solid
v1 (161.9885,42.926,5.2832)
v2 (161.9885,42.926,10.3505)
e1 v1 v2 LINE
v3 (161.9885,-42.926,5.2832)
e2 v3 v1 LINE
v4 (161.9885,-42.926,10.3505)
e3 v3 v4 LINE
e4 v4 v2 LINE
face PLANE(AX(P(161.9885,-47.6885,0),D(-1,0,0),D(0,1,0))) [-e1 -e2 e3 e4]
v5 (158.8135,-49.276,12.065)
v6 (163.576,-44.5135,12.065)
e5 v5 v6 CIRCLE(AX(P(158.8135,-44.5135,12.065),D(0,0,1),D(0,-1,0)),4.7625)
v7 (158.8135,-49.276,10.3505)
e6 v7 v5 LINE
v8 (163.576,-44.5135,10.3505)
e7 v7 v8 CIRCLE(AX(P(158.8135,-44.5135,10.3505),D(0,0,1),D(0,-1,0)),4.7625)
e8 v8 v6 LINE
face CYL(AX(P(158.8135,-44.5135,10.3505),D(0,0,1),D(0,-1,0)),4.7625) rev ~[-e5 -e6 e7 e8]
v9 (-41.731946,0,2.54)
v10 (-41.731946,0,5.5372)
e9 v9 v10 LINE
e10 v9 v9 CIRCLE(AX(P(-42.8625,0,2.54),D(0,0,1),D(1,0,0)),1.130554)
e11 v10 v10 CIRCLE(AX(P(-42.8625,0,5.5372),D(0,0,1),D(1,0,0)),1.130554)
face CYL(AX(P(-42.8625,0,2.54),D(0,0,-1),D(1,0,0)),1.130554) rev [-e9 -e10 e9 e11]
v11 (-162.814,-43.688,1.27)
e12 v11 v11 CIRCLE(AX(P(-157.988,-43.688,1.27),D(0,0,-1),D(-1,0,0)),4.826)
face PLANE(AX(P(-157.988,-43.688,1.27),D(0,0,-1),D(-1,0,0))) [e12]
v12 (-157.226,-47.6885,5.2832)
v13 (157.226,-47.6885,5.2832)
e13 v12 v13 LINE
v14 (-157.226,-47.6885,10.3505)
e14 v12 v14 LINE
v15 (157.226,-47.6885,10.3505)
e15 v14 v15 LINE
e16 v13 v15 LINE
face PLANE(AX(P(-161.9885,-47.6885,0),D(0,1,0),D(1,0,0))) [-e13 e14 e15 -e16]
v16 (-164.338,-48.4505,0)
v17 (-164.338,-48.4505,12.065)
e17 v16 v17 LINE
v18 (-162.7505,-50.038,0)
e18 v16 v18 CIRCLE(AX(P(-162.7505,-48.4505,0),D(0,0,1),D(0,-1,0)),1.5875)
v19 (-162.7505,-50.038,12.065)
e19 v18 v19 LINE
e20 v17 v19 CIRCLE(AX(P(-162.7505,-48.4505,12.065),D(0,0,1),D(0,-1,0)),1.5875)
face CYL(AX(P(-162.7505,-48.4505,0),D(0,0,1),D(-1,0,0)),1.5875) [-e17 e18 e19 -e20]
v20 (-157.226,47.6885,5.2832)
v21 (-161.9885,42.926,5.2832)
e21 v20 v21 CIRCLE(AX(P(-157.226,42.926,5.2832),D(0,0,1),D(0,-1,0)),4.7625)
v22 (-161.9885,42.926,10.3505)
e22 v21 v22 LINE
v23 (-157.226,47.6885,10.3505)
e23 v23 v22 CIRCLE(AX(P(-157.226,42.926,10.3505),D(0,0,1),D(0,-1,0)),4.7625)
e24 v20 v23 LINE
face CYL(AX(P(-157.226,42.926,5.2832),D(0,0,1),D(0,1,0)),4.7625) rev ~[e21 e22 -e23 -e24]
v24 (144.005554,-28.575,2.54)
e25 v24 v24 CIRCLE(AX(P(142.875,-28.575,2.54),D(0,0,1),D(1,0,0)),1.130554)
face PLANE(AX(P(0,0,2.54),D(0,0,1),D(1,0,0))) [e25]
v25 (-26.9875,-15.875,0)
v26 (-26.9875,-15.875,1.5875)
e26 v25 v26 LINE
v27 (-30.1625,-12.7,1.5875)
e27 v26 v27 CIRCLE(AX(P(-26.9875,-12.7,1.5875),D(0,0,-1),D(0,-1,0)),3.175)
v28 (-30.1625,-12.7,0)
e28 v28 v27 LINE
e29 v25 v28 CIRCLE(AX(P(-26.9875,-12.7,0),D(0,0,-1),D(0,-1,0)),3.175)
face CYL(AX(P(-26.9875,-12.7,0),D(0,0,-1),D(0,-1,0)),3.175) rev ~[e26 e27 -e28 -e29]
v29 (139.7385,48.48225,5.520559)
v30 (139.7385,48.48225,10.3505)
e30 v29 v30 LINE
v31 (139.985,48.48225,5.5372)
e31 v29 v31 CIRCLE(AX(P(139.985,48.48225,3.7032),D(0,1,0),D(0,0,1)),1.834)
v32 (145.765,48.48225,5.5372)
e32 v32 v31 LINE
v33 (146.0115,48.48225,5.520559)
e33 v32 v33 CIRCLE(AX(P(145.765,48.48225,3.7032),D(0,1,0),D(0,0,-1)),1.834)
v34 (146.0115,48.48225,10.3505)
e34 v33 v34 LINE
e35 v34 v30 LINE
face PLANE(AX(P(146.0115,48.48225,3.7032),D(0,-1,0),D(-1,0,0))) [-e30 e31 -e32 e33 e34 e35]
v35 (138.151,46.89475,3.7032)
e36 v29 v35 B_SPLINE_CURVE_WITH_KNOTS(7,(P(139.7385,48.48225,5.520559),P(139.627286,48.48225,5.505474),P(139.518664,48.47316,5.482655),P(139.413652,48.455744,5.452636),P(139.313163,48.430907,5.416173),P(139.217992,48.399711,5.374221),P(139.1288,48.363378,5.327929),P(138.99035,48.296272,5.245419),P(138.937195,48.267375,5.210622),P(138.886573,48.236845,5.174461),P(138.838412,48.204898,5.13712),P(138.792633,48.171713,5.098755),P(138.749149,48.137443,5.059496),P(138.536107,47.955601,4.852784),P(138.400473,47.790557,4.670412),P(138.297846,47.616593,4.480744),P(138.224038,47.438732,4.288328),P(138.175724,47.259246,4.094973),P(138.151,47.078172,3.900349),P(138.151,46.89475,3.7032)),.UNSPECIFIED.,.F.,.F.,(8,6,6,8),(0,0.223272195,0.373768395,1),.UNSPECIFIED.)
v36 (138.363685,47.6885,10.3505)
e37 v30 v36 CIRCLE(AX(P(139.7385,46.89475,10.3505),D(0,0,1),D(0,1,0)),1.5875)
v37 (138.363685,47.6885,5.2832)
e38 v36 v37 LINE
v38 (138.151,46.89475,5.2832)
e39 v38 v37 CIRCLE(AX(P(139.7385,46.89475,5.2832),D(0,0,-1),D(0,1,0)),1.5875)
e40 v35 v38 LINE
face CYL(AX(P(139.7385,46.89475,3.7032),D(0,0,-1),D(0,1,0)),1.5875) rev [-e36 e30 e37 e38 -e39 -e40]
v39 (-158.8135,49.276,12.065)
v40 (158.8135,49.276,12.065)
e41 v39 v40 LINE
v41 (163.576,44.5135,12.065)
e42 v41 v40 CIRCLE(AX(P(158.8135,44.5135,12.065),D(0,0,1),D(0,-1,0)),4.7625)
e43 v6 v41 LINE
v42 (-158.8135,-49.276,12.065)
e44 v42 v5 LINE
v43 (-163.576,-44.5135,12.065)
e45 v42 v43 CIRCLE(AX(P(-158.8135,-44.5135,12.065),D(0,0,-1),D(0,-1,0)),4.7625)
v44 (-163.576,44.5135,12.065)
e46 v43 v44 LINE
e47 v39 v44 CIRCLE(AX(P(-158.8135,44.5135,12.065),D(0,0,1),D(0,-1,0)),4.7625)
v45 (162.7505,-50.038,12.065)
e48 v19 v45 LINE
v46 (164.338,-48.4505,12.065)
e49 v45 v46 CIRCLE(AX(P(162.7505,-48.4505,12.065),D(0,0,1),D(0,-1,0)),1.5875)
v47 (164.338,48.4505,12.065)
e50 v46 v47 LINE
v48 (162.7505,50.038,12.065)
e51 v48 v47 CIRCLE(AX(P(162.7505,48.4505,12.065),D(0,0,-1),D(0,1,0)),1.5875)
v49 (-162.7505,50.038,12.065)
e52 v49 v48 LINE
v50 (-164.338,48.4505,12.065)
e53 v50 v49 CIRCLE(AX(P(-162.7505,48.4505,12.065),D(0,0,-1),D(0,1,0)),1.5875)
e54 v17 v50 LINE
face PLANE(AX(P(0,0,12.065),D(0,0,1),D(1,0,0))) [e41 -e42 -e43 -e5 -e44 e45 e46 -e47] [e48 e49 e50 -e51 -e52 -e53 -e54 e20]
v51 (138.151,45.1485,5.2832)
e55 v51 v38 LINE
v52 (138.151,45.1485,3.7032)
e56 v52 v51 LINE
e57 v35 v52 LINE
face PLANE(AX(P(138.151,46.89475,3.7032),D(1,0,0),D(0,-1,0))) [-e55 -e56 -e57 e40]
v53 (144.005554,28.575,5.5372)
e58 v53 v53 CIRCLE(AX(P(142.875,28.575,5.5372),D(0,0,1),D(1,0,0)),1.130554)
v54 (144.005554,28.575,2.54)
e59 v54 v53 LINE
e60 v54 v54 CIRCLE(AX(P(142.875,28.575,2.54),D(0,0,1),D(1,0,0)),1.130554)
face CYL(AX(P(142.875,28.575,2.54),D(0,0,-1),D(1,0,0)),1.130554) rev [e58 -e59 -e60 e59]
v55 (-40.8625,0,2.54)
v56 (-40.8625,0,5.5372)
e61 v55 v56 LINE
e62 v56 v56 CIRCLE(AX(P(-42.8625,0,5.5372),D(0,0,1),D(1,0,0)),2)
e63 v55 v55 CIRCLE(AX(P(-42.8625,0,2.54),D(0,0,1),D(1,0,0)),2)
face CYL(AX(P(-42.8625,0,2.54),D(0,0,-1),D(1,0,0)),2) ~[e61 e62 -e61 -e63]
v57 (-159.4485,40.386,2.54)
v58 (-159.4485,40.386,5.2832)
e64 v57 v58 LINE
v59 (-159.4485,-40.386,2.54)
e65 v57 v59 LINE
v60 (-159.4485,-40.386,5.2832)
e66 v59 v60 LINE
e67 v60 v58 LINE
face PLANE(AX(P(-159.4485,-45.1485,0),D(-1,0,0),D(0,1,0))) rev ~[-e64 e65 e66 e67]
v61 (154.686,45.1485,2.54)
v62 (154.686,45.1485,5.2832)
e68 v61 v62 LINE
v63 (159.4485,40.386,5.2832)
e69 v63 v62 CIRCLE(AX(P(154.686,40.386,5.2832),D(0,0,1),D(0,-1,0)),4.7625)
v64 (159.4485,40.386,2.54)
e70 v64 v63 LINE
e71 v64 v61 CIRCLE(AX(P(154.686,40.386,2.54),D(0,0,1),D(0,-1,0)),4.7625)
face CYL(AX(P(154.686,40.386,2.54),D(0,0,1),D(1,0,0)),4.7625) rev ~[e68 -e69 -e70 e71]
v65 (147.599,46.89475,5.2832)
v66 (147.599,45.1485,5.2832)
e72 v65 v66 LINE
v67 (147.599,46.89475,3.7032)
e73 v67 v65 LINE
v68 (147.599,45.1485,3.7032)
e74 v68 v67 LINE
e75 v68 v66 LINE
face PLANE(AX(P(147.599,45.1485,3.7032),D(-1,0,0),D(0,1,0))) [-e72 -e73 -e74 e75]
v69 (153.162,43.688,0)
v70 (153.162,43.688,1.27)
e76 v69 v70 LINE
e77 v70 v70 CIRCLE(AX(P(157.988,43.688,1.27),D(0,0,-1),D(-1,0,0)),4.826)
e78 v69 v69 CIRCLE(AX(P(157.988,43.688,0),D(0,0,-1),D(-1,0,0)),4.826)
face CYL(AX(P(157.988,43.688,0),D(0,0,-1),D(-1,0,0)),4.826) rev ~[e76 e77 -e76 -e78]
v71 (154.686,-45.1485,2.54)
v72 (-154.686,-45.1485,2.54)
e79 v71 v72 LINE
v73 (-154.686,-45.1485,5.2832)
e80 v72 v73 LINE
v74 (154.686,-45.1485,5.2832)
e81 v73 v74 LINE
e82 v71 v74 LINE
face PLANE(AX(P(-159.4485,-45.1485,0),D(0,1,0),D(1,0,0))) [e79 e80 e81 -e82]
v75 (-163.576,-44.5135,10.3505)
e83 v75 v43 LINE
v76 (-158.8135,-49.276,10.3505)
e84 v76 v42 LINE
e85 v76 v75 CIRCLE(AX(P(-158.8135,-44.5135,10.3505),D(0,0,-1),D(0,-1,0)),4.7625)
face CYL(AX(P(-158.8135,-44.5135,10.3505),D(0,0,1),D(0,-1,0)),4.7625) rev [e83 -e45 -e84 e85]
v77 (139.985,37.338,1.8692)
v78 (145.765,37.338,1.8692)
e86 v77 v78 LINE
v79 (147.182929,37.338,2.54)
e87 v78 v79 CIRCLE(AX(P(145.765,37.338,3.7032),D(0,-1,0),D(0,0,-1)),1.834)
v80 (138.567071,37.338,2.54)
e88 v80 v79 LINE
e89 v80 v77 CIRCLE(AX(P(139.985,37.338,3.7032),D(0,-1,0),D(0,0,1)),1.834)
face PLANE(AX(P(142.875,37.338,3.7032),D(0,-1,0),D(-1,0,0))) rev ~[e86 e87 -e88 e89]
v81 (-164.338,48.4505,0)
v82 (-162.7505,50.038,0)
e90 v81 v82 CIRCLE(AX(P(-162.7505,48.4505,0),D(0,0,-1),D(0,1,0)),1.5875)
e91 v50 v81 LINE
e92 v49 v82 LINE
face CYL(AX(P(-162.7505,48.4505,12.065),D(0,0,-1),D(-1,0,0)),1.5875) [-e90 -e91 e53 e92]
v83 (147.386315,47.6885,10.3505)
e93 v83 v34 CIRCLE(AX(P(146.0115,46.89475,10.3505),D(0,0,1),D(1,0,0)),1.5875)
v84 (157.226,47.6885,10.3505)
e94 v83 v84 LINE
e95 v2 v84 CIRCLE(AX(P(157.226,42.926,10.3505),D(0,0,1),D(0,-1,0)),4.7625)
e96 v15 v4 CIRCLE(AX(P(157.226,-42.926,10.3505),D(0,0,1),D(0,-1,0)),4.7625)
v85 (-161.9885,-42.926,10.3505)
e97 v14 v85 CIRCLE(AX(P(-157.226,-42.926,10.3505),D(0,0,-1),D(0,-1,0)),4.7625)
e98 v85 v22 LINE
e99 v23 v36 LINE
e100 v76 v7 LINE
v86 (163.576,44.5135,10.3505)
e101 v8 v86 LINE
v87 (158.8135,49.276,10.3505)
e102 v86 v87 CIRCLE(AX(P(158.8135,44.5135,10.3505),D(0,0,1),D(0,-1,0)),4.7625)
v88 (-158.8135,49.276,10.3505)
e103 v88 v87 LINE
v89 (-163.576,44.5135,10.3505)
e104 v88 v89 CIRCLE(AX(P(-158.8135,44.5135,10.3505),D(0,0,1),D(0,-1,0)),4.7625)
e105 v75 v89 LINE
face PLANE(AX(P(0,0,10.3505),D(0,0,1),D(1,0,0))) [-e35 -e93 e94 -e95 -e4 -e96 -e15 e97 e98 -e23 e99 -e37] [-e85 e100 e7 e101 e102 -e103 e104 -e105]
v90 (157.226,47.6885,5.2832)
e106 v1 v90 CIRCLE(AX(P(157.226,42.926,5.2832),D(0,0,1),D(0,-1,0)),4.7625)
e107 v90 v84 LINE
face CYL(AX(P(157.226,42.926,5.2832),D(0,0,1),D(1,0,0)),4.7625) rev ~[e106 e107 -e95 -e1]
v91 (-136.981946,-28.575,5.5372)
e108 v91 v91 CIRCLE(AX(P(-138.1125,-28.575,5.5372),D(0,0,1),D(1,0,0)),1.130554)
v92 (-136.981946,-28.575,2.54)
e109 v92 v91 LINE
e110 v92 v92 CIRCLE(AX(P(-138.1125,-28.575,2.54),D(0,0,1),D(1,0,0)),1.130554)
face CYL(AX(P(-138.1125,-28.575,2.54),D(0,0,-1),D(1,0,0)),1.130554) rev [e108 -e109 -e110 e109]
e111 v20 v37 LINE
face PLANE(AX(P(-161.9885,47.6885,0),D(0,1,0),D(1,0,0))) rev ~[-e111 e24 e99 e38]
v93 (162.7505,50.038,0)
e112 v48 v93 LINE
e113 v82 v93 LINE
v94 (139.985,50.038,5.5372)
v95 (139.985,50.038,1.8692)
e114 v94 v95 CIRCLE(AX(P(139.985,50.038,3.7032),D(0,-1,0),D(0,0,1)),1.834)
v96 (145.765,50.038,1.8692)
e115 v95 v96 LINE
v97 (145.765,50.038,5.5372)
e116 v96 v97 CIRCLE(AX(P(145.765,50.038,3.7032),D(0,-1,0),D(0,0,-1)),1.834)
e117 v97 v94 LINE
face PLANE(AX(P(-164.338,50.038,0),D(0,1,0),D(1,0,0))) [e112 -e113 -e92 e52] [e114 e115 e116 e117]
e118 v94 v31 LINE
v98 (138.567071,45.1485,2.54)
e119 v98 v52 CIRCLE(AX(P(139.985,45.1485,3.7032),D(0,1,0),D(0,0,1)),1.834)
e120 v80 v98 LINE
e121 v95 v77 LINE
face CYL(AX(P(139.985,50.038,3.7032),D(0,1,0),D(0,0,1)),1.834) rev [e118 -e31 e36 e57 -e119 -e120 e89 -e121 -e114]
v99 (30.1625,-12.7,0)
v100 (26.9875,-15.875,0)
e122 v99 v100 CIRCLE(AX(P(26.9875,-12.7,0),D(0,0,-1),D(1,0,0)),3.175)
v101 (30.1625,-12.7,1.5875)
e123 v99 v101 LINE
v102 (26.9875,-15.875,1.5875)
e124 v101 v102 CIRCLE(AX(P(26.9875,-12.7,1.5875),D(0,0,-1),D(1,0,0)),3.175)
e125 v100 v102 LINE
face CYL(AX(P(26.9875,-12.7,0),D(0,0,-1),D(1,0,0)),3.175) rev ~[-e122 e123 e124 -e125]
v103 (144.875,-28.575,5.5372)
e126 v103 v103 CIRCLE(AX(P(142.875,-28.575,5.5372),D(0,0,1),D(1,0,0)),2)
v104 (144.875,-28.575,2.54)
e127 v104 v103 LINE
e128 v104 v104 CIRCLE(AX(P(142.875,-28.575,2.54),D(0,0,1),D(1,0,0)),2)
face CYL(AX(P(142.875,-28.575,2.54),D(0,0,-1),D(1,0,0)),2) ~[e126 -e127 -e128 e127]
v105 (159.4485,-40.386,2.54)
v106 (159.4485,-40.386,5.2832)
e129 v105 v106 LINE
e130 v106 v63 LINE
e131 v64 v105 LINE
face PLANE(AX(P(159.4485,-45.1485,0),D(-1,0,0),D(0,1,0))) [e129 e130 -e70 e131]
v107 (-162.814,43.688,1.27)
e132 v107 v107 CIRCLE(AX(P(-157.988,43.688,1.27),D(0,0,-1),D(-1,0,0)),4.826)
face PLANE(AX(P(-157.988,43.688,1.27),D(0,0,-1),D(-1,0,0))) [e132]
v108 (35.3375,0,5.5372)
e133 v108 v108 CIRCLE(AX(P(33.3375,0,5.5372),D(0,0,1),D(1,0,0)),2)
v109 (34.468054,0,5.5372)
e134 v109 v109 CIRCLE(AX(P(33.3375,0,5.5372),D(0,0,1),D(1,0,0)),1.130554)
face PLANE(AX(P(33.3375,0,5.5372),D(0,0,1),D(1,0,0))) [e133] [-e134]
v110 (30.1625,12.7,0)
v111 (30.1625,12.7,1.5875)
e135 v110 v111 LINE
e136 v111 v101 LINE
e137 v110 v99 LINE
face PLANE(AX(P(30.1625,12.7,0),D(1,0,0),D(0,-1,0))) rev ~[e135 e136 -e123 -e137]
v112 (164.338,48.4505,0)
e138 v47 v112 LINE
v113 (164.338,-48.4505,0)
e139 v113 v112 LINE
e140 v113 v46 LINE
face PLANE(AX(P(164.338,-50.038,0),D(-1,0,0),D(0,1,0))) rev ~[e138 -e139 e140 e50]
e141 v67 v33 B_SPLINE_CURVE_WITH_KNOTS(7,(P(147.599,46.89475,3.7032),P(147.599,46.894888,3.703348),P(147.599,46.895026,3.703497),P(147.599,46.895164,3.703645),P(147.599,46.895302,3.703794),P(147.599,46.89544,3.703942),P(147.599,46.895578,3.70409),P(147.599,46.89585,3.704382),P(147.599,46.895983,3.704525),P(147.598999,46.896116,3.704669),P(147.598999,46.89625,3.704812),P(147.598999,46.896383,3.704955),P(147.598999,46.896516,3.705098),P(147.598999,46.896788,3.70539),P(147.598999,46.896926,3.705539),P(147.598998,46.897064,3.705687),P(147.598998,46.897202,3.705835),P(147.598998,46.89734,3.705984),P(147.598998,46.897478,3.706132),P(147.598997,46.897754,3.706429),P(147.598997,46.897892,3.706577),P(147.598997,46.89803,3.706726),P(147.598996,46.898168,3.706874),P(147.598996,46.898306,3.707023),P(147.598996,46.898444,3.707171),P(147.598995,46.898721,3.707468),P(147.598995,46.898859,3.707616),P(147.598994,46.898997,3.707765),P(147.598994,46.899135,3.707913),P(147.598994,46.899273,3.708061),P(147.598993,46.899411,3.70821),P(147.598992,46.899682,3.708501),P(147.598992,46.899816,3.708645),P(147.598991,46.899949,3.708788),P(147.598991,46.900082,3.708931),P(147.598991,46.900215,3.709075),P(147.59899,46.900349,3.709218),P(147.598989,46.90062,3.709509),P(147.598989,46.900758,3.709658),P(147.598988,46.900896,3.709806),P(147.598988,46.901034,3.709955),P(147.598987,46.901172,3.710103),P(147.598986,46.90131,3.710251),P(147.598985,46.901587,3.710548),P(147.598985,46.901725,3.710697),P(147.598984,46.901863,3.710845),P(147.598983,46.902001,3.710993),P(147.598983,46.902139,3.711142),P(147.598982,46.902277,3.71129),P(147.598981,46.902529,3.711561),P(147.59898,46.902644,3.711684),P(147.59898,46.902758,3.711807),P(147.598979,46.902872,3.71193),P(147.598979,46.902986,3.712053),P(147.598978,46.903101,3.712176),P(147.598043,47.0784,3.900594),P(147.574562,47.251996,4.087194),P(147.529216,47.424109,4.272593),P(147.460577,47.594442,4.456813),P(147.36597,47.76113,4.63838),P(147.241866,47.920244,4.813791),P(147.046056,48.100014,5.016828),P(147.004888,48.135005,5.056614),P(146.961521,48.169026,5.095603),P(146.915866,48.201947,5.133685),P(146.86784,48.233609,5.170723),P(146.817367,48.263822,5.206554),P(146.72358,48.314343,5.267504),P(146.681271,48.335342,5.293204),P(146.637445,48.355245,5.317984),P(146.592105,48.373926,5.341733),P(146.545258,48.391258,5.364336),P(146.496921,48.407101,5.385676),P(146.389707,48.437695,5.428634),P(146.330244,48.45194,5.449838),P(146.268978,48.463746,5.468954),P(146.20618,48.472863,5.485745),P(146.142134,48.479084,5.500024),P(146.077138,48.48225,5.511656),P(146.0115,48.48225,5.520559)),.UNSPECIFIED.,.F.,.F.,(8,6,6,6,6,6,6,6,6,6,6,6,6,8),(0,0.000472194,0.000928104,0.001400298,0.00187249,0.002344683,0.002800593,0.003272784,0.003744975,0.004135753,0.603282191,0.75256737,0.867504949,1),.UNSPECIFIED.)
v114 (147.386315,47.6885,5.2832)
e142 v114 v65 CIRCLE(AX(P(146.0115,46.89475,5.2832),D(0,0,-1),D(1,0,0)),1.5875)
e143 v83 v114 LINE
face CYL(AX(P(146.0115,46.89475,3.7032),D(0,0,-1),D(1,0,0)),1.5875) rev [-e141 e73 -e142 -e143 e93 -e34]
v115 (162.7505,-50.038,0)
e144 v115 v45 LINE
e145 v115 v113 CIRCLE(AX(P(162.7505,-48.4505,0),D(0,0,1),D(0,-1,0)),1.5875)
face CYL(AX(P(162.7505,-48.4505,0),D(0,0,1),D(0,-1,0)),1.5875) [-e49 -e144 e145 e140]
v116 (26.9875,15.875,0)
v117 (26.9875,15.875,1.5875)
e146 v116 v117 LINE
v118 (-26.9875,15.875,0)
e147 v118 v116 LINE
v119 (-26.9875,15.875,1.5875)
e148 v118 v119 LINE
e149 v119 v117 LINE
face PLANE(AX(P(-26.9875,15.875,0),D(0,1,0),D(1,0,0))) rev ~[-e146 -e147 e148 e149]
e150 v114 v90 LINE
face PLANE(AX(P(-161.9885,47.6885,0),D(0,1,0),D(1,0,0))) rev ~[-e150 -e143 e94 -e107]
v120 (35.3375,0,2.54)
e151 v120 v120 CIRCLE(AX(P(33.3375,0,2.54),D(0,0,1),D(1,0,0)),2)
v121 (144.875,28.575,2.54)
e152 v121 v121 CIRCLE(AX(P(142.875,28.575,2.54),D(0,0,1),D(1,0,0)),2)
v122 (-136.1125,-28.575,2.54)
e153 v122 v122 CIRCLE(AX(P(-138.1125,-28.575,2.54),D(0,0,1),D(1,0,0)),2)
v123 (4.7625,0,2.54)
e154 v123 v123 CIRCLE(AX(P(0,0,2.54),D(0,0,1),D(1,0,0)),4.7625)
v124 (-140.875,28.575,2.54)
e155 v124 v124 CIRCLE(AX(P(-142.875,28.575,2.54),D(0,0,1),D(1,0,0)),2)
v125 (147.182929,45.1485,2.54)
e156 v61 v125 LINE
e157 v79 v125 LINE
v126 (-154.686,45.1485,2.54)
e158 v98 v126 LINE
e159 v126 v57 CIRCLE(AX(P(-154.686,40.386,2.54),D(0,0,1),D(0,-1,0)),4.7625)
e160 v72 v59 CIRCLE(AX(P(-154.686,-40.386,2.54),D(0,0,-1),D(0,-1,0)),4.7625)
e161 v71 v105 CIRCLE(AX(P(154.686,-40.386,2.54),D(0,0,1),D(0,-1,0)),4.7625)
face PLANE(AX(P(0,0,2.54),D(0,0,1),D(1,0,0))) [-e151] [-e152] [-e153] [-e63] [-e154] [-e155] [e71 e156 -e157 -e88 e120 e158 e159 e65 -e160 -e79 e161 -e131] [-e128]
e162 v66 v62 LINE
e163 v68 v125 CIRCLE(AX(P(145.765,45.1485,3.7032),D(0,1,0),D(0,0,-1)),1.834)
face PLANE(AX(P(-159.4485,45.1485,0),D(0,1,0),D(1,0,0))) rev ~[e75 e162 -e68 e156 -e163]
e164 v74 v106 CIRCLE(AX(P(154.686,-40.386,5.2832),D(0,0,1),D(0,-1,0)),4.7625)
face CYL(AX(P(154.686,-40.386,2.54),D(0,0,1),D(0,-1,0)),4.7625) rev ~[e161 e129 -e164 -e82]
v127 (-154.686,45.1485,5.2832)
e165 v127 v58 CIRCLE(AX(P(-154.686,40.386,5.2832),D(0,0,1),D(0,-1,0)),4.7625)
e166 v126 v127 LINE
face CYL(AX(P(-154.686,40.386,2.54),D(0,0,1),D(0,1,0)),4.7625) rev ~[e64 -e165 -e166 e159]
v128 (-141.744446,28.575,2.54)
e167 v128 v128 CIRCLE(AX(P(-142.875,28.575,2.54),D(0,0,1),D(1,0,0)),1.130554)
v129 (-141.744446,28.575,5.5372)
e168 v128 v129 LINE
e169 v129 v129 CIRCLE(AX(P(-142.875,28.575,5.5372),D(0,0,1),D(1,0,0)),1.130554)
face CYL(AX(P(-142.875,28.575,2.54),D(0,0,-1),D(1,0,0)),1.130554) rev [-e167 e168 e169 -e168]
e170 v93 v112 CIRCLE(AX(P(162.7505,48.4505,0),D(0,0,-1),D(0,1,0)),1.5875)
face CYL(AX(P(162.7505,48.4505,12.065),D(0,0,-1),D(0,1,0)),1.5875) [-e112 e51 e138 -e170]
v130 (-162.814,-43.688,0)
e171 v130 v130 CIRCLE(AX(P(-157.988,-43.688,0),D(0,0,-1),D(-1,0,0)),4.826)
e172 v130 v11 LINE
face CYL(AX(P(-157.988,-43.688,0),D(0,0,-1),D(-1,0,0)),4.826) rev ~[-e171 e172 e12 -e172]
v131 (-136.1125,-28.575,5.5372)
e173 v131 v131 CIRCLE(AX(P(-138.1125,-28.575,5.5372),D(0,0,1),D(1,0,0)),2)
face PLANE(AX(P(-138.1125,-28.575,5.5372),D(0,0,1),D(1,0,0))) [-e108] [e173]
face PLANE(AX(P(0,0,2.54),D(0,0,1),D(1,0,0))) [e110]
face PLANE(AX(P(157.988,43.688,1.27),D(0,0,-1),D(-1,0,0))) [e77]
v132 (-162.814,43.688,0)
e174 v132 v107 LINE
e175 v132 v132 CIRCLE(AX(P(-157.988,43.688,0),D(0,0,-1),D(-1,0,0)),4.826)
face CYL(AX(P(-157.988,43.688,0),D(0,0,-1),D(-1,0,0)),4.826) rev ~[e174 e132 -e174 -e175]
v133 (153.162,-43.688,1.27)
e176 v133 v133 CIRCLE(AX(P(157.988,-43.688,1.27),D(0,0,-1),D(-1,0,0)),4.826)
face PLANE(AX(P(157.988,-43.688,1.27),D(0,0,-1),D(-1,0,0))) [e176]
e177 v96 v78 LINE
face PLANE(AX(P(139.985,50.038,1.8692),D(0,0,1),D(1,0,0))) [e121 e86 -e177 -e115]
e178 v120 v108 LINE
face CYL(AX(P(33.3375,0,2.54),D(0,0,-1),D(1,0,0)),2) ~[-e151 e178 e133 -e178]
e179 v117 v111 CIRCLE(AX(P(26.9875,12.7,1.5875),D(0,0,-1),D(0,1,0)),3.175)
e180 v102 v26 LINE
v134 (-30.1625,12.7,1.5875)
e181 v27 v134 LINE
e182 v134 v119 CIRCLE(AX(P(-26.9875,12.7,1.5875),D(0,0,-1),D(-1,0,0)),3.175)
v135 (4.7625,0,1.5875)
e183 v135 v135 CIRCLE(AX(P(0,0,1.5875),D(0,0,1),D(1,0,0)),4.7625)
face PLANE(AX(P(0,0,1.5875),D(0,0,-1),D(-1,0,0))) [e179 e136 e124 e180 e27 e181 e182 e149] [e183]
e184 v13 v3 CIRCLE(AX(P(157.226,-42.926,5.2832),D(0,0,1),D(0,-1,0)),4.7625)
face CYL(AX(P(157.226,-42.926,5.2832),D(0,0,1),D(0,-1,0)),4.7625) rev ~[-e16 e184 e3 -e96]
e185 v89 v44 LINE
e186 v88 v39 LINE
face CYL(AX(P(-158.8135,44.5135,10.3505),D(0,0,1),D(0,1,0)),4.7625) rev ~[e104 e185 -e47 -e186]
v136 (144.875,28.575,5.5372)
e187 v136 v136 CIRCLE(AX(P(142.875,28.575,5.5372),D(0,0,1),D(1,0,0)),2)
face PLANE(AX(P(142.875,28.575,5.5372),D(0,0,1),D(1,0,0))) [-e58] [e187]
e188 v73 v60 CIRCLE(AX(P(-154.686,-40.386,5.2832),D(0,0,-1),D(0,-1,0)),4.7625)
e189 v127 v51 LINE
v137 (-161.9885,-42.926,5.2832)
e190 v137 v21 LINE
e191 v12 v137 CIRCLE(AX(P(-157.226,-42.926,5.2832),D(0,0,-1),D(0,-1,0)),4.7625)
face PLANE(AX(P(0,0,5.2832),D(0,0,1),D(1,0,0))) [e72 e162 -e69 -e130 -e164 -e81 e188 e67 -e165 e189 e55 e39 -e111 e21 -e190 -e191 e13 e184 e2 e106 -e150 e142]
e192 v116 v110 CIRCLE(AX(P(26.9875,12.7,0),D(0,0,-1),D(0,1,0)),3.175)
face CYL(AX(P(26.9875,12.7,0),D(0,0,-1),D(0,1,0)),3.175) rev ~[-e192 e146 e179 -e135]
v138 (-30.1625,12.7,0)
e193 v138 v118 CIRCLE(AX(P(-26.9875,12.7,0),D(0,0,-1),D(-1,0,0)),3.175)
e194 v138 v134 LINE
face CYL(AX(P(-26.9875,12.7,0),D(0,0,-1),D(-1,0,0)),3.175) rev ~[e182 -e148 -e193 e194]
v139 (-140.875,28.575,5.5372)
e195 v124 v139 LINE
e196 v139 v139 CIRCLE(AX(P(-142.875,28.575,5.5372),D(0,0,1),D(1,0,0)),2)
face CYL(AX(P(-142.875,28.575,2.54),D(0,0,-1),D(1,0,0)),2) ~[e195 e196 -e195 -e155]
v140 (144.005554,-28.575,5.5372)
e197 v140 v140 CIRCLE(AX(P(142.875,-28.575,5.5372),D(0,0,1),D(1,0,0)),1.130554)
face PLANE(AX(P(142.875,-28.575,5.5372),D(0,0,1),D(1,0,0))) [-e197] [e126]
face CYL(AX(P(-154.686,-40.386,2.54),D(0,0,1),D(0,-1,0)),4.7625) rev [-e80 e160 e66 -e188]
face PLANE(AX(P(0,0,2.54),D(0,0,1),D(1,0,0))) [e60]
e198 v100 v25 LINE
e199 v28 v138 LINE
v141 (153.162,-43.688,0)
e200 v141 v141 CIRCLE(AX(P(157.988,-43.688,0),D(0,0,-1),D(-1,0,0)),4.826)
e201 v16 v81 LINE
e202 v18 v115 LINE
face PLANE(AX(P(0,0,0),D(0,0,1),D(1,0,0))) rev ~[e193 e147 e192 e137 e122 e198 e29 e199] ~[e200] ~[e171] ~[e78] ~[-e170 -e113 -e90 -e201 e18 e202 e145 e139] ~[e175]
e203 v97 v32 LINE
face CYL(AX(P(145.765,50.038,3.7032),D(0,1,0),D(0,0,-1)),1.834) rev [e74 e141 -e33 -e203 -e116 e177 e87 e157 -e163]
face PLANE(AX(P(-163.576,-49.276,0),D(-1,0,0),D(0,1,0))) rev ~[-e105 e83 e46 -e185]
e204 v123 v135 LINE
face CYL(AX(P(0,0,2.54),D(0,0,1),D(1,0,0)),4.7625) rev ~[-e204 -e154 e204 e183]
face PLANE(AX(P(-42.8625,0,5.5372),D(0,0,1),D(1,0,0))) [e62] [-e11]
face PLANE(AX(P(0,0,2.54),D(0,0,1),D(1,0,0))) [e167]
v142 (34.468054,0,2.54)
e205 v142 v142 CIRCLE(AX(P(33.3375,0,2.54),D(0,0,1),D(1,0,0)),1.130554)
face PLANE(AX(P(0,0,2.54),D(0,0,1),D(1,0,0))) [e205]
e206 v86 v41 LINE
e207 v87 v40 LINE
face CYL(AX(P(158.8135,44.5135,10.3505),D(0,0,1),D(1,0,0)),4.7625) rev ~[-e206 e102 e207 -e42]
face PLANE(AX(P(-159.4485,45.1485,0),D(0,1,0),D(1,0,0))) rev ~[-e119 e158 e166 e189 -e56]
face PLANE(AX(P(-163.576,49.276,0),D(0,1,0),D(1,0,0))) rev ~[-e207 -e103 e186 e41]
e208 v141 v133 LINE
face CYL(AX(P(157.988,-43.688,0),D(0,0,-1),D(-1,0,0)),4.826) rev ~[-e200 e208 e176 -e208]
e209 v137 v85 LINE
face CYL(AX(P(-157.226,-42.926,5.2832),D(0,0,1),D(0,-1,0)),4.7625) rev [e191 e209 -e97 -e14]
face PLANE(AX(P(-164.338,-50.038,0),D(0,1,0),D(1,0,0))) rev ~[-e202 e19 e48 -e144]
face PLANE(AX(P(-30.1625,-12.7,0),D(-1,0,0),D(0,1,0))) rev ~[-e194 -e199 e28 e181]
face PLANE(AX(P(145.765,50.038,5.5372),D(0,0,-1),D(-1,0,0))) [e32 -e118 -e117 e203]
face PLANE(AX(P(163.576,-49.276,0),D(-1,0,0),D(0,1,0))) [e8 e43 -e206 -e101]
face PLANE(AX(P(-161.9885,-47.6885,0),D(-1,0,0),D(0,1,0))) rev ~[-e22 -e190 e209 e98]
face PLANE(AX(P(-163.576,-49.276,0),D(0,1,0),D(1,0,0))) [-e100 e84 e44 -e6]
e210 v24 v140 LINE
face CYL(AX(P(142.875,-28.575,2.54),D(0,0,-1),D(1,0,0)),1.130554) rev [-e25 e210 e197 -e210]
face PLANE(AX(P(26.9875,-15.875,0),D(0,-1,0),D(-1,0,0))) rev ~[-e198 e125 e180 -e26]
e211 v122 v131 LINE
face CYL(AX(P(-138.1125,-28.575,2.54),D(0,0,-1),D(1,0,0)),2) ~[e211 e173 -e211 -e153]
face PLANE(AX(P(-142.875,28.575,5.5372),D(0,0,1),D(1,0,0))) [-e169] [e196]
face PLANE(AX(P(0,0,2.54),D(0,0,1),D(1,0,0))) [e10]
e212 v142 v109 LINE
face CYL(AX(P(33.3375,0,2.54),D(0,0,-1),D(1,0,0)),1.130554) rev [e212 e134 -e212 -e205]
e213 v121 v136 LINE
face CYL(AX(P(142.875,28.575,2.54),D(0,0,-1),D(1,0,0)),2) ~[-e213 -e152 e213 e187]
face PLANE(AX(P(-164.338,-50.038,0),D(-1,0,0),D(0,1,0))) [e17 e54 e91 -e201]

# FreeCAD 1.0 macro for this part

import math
import FreeCAD as App
import Part
import Sketcher
Q = App.Units.Quantity


def edges_at(feature, points):
    """Names of the edges that pass closest to the given points."""
    edges = feature.Shape.Edges
    near = lambda p: min(range(len(edges)), key=lambda i: edges[i].distToShape(Part.Vertex(*p))[0])
    return sorted({f"Edge{near(p) + 1}" for p in points})

doc = App.newDocument("Part")
params = doc.addObject("Spreadsheet::Sheet", "Params")
for row, (alias, value) in enumerate([
    ("sketch1_width", "12.94 in"),
    ("sketch1_height", "3.94 in"),
    ("pad1_length", "0.1 in"),
    ("sketch2_width", "12.94 in"),
    ("sketch2_width2", "12.88 in"),
    ("sketch2_height", "3.94 in"),
    ("sketch2_height2", "3.88 in"),
    ("pad2_length", "0.475 in"),
    ("sketch3_width", "12.88 in"),
    ("sketch3_height", "3.88 in"),
    ("sketch3_width2", "12.755 in"),
    ("sketch3_height2", "3.755 in"),
    ("pad3_length", "0.4075 in"),
    ("sketch4_width", "12.755 in"),
    ("sketch4_height", "3.755 in"),
    ("pad4_length", "0.208 in"),
    ("pad5_length", "0.118 in"),
    ("fillet_radius", "0.1875 in"),
    ("fillet2_radius", "0.0625 in"),
    ("sketch6_height", "1 in"),
    ("sketch6_radius", "0.125 in"),
    ("sketch6_width", "2.125 in"),
    ("pocket1_length", "0.0625 in"),
    ("sketch7_diameter", "0.375 in"),
    ("pocket3_length", "0.5 in"),
    ("sketch9_radius", "0.0625 in"),
    ("pocket4_length", "6.6473 mm"),
    ("sketch10_diameter", "0.38 in"),
    ("pocket5_length", "0.05 in"),
], start=1):
    params.set(f"A{row}", alias)
    params.set(f"B{row}", "=" + value)
    params.setAlias(f"B{row}", alias)

body = doc.addObject("PartDesign::Body", "Body")

# Sketch on XY plane
sketch1 = body.newObject("Sketcher::SketchObject", "Sketch")
sketch1.AttachmentSupport = (doc.getObject("XY_Plane"), [""])
sketch1.MapMode = "FlatFace"
sketch1.addGeometry(Part.LineSegment(App.Vector(-164.338, 50.038, 0), App.Vector(-164.338, -50.038, 0)), False)
sketch1.addGeometry(Part.LineSegment(App.Vector(-164.338, -50.038, 0), App.Vector(164.338, -50.038, 0)), False)
sketch1.addGeometry(Part.LineSegment(App.Vector(164.338, -50.038, 0), App.Vector(164.338, 50.038, 0)), False)
sketch1.addGeometry(Part.LineSegment(App.Vector(164.338, 50.038, 0), App.Vector(-164.338, 50.038, 0)), False)
sketch1.addConstraint(Sketcher.Constraint("Coincident", 0, 2, 1, 1))
sketch1.addConstraint(Sketcher.Constraint("Coincident", 1, 2, 2, 1))
sketch1.addConstraint(Sketcher.Constraint("Coincident", 2, 2, 3, 1))
sketch1.addConstraint(Sketcher.Constraint("Coincident", 3, 2, 0, 1))
sketch1.addConstraint(Sketcher.Constraint("Vertical", 0))
sketch1.addConstraint(Sketcher.Constraint("Horizontal", 1))
sketch1.addConstraint(Sketcher.Constraint("Vertical", 2))
sketch1.addConstraint(Sketcher.Constraint("Horizontal", 3))
sketch1.addConstraint(Sketcher.Constraint("Symmetric", 0, 2, 2, 2, -1, 1))
sketch1.addConstraint(Sketcher.Constraint("DistanceX", 1, 1, 1, 2, Q("12.94 in")))
sketch1.addConstraint(Sketcher.Constraint("DistanceY", 0, 2, 0, 1, Q("3.94 in")))
sketch1.setExpression("Constraints[9]", "Params.sketch1_width")
sketch1.setExpression("Constraints[10]", "Params.sketch1_height")
pad1 = body.newObject("PartDesign::Pad", "Pad")
pad1.Profile = sketch1
pad1.setExpression("Length", "Params.pad1_length")

# Sketch on XY plane
sketch2 = body.newObject("Sketcher::SketchObject", "Sketch001")
sketch2.AttachmentSupport = (doc.getObject("XY_Plane"), [""])
sketch2.MapMode = "FlatFace"
sketch2.addGeometry(Part.LineSegment(App.Vector(-164.338, 50.038, 0), App.Vector(-164.338, -50.038, 0)), False)
sketch2.addGeometry(Part.LineSegment(App.Vector(-164.338, -50.038, 0), App.Vector(164.338, -50.038, 0)), False)
sketch2.addGeometry(Part.LineSegment(App.Vector(164.338, -50.038, 0), App.Vector(164.338, 50.038, 0)), False)
sketch2.addGeometry(Part.LineSegment(App.Vector(164.338, 50.038, 0), App.Vector(-164.338, 50.038, 0)), False)
sketch2.addGeometry(Part.LineSegment(App.Vector(163.576, -49.276, 0), App.Vector(-163.576, -49.276, 0)), False)
sketch2.addGeometry(Part.LineSegment(App.Vector(-163.576, -49.276, 0), App.Vector(-163.576, 49.276, 0)), False)
sketch2.addGeometry(Part.LineSegment(App.Vector(-163.576, 49.276, 0), App.Vector(163.576, 49.276, 0)), False)
sketch2.addGeometry(Part.LineSegment(App.Vector(163.576, 49.276, 0), App.Vector(163.576, -49.276, 0)), False)
sketch2.addConstraint(Sketcher.Constraint("Coincident", 0, 2, 1, 1))
sketch2.addConstraint(Sketcher.Constraint("Coincident", 1, 2, 2, 1))
sketch2.addConstraint(Sketcher.Constraint("Coincident", 2, 2, 3, 1))
sketch2.addConstraint(Sketcher.Constraint("Coincident", 3, 2, 0, 1))
sketch2.addConstraint(Sketcher.Constraint("Coincident", 4, 2, 5, 1))
sketch2.addConstraint(Sketcher.Constraint("Coincident", 5, 2, 6, 1))
sketch2.addConstraint(Sketcher.Constraint("Coincident", 6, 2, 7, 1))
sketch2.addConstraint(Sketcher.Constraint("Coincident", 7, 2, 4, 1))
sketch2.addConstraint(Sketcher.Constraint("Vertical", 0))
sketch2.addConstraint(Sketcher.Constraint("Horizontal", 1))
sketch2.addConstraint(Sketcher.Constraint("Vertical", 2))
sketch2.addConstraint(Sketcher.Constraint("Horizontal", 3))
sketch2.addConstraint(Sketcher.Constraint("Horizontal", 4))
sketch2.addConstraint(Sketcher.Constraint("Vertical", 5))
sketch2.addConstraint(Sketcher.Constraint("Horizontal", 6))
sketch2.addConstraint(Sketcher.Constraint("Vertical", 7))
sketch2.addConstraint(Sketcher.Constraint("Symmetric", 0, 2, 2, 2, -1, 1))
sketch2.addConstraint(Sketcher.Constraint("Symmetric", 4, 2, 6, 2, -1, 1))
sketch2.addConstraint(Sketcher.Constraint("DistanceX", 1, 1, 1, 2, Q("12.94 in")))
sketch2.addConstraint(Sketcher.Constraint("DistanceX", 4, 2, 4, 1, Q("12.88 in")))
sketch2.addConstraint(Sketcher.Constraint("DistanceY", 0, 2, 0, 1, Q("3.94 in")))
sketch2.addConstraint(Sketcher.Constraint("DistanceY", 5, 1, 5, 2, Q("3.88 in")))
sketch2.setExpression("Constraints[18]", "Params.sketch2_width")
sketch2.setExpression("Constraints[19]", "Params.sketch2_width2")
sketch2.setExpression("Constraints[20]", "Params.sketch2_height")
sketch2.setExpression("Constraints[21]", "Params.sketch2_height2")
pad2 = body.newObject("PartDesign::Pad", "Pad001")
pad2.Profile = sketch2
pad2.setExpression("Length", "Params.pad2_length")

# Sketch on XY plane
sketch3 = body.newObject("Sketcher::SketchObject", "Sketch002")
sketch3.AttachmentSupport = (doc.getObject("XY_Plane"), [""])
sketch3.MapMode = "FlatFace"
sketch3.addGeometry(Part.LineSegment(App.Vector(-163.576, 49.276, 0), App.Vector(-163.576, -49.276, 0)), False)
sketch3.addGeometry(Part.LineSegment(App.Vector(-163.576, -49.276, 0), App.Vector(163.576, -49.276, 0)), False)
sketch3.addGeometry(Part.LineSegment(App.Vector(163.576, -49.276, 0), App.Vector(163.576, 49.276, 0)), False)
sketch3.addGeometry(Part.LineSegment(App.Vector(163.576, 49.276, 0), App.Vector(-163.576, 49.276, 0)), False)
sketch3.addGeometry(Part.LineSegment(App.Vector(161.9885, -47.6885, 0), App.Vector(-161.9885, -47.6885, 0)), False)
sketch3.addGeometry(Part.LineSegment(App.Vector(-161.9885, -47.6885, 0), App.Vector(-161.9885, 47.6885, 0)), False)
sketch3.addGeometry(Part.LineSegment(App.Vector(-161.9885, 47.6885, 0), App.Vector(161.9885, 47.6885, 0)), False)
sketch3.addGeometry(Part.LineSegment(App.Vector(161.9885, 47.6885, 0), App.Vector(161.9885, -47.6885, 0)), False)
sketch3.addConstraint(Sketcher.Constraint("Coincident", 0, 2, 1, 1))
sketch3.addConstraint(Sketcher.Constraint("Coincident", 1, 2, 2, 1))
sketch3.addConstraint(Sketcher.Constraint("Coincident", 2, 2, 3, 1))
sketch3.addConstraint(Sketcher.Constraint("Coincident", 3, 2, 0, 1))
sketch3.addConstraint(Sketcher.Constraint("Coincident", 4, 2, 5, 1))
sketch3.addConstraint(Sketcher.Constraint("Coincident", 5, 2, 6, 1))
sketch3.addConstraint(Sketcher.Constraint("Coincident", 6, 2, 7, 1))
sketch3.addConstraint(Sketcher.Constraint("Coincident", 7, 2, 4, 1))
sketch3.addConstraint(Sketcher.Constraint("Vertical", 0))
sketch3.addConstraint(Sketcher.Constraint("Horizontal", 1))
sketch3.addConstraint(Sketcher.Constraint("Vertical", 2))
sketch3.addConstraint(Sketcher.Constraint("Horizontal", 3))
sketch3.addConstraint(Sketcher.Constraint("Horizontal", 4))
sketch3.addConstraint(Sketcher.Constraint("Vertical", 5))
sketch3.addConstraint(Sketcher.Constraint("Horizontal", 6))
sketch3.addConstraint(Sketcher.Constraint("Vertical", 7))
sketch3.addConstraint(Sketcher.Constraint("Symmetric", 0, 2, 2, 2, -1, 1))
sketch3.addConstraint(Sketcher.Constraint("Symmetric", 4, 2, 6, 2, -1, 1))
sketch3.addConstraint(Sketcher.Constraint("DistanceX", 1, 1, 1, 2, Q("12.88 in")))
sketch3.addConstraint(Sketcher.Constraint("DistanceY", 0, 2, 0, 1, Q("3.88 in")))
sketch3.addConstraint(Sketcher.Constraint("DistanceX", 4, 2, 4, 1, Q("12.755 in")))
sketch3.addConstraint(Sketcher.Constraint("DistanceY", 5, 1, 5, 2, Q("3.755 in")))
sketch3.setExpression("Constraints[18]", "Params.sketch3_width")
sketch3.setExpression("Constraints[19]", "Params.sketch3_height")
sketch3.setExpression("Constraints[20]", "Params.sketch3_width2")
sketch3.setExpression("Constraints[21]", "Params.sketch3_height2")
pad3 = body.newObject("PartDesign::Pad", "Pad002")
pad3.Profile = sketch3
pad3.setExpression("Length", "Params.pad3_length")

# Sketch on XY plane
sketch4 = body.newObject("Sketcher::SketchObject", "Sketch003")
sketch4.AttachmentSupport = (doc.getObject("XY_Plane"), [""])
sketch4.MapMode = "FlatFace"
sketch4.addGeometry(Part.LineSegment(App.Vector(-161.9885, 47.6885, 0), App.Vector(-161.9885, -47.6885, 0)), False)
sketch4.addGeometry(Part.LineSegment(App.Vector(-161.9885, -47.6885, 0), App.Vector(161.9885, -47.6885, 0)), False)
sketch4.addGeometry(Part.LineSegment(App.Vector(161.9885, -47.6885, 0), App.Vector(161.9885, 47.6885, 0)), False)
sketch4.addGeometry(Part.LineSegment(App.Vector(161.9885, 47.6885, 0), App.Vector(-161.9885, 47.6885, 0)), False)
sketch4.addGeometry(Part.LineSegment(App.Vector(159.4485, -45.1485, 0), App.Vector(-159.4485, -45.1485, 0)), False)
sketch4.addGeometry(Part.LineSegment(App.Vector(-159.4485, -45.1485, 0), App.Vector(-159.4485, 45.1485, 0)), False)
sketch4.addGeometry(Part.LineSegment(App.Vector(-159.4485, 45.1485, 0), App.Vector(159.4485, 45.1485, 0)), False)
sketch4.addGeometry(Part.LineSegment(App.Vector(159.4485, 45.1485, 0), App.Vector(159.4485, -45.1485, 0)), False)
sketch4.addConstraint(Sketcher.Constraint("Coincident", 0, 2, 1, 1))
sketch4.addConstraint(Sketcher.Constraint("Coincident", 1, 2, 2, 1))
sketch4.addConstraint(Sketcher.Constraint("Coincident", 2, 2, 3, 1))
sketch4.addConstraint(Sketcher.Constraint("Coincident", 3, 2, 0, 1))
sketch4.addConstraint(Sketcher.Constraint("Coincident", 4, 2, 5, 1))
sketch4.addConstraint(Sketcher.Constraint("Coincident", 5, 2, 6, 1))
sketch4.addConstraint(Sketcher.Constraint("Coincident", 6, 2, 7, 1))
sketch4.addConstraint(Sketcher.Constraint("Coincident", 7, 2, 4, 1))
sketch4.addConstraint(Sketcher.Constraint("Vertical", 0))
sketch4.addConstraint(Sketcher.Constraint("Horizontal", 1))
sketch4.addConstraint(Sketcher.Constraint("Vertical", 2))
sketch4.addConstraint(Sketcher.Constraint("Horizontal", 3))
sketch4.addConstraint(Sketcher.Constraint("Horizontal", 4))
sketch4.addConstraint(Sketcher.Constraint("Vertical", 5))
sketch4.addConstraint(Sketcher.Constraint("Horizontal", 6))
sketch4.addConstraint(Sketcher.Constraint("Vertical", 7))
sketch4.addConstraint(Sketcher.Constraint("Symmetric", 0, 2, 2, 2, -1, 1))
sketch4.addConstraint(Sketcher.Constraint("Symmetric", 4, 2, 6, 2, -1, 1))
sketch4.addConstraint(Sketcher.Constraint("DistanceX", 0, 2, 4, 2, Q("0.1 in")))
sketch4.addConstraint(Sketcher.Constraint("DistanceY", 0, 2, 4, 2, Q("0.1 in")))
sketch4.addConstraint(Sketcher.Constraint("DistanceX", 1, 1, 1, 2, Q("12.755 in")))
sketch4.addConstraint(Sketcher.Constraint("DistanceY", 0, 2, 0, 1, Q("3.755 in")))
sketch4.setExpression("Constraints[20]", "Params.sketch4_width")
sketch4.setExpression("Constraints[21]", "Params.sketch4_height")
pad4 = body.newObject("PartDesign::Pad", "Pad003")
pad4.Profile = sketch4
pad4.setExpression("Length", "Params.pad4_length")

# Sketch on XY plane
sketch5 = body.newObject("Sketcher::SketchObject", "Sketch004")
sketch5.AttachmentSupport = (doc.getObject("XY_Plane"), [""])
sketch5.MapMode = "FlatFace"
sketch5.AttachmentOffset = App.Placement(App.Vector(0, 0, 0.1 * 25.4), App.Rotation())
sketch5.addGeometry(Part.Circle(App.Vector(142.875, -28.575, 0), App.Vector(0, 0, 1), 2), False)
sketch5.addGeometry(Part.Circle(App.Vector(142.875, -28.575, 0), App.Vector(0, 0, 1), 1.130554), False)
sketch5.addGeometry(Part.Circle(App.Vector(142.875, 28.575, 0), App.Vector(0, 0, 1), 2), False)
sketch5.addGeometry(Part.Circle(App.Vector(142.875, 28.575, 0), App.Vector(0, 0, 1), 1.130554), False)
sketch5.addGeometry(Part.Circle(App.Vector(-42.8625, 0, 0), App.Vector(0, 0, 1), 2), False)
sketch5.addGeometry(Part.Circle(App.Vector(-42.8625, 0, 0), App.Vector(0, 0, 1), 1.130554), False)
sketch5.addGeometry(Part.Circle(App.Vector(33.3375, 0, 0), App.Vector(0, 0, 1), 2), False)
sketch5.addGeometry(Part.Circle(App.Vector(33.3375, 0, 0), App.Vector(0, 0, 1), 1.130554), False)
sketch5.addGeometry(Part.Circle(App.Vector(-142.875, 28.575, 0), App.Vector(0, 0, 1), 2), False)
sketch5.addGeometry(Part.Circle(App.Vector(-142.875, 28.575, 0), App.Vector(0, 0, 1), 1.130554), False)
sketch5.addGeometry(Part.Circle(App.Vector(-138.1125, -28.575, 0), App.Vector(0, 0, 1), 2), False)
sketch5.addGeometry(Part.Circle(App.Vector(-138.1125, -28.575, 0), App.Vector(0, 0, 1), 1.130554), False)
sketch5.addConstraint(Sketcher.Constraint("Coincident", 1, 3, 0, 3))
sketch5.addConstraint(Sketcher.Constraint("Coincident", 3, 3, 2, 3))
sketch5.addConstraint(Sketcher.Constraint("Coincident", 5, 3, 4, 3))
sketch5.addConstraint(Sketcher.Constraint("Coincident", 7, 3, 6, 3))
sketch5.addConstraint(Sketcher.Constraint("Coincident", 9, 3, 8, 3))
sketch5.addConstraint(Sketcher.Constraint("Coincident", 11, 3, 10, 3))
sketch5.addConstraint(Sketcher.Constraint("Equal", 0, 2))
sketch5.addConstraint(Sketcher.Constraint("Equal", 1, 3))
sketch5.addConstraint(Sketcher.Constraint("Equal", 2, 4))
sketch5.addConstraint(Sketcher.Constraint("Equal", 3, 5))
sketch5.addConstraint(Sketcher.Constraint("Equal", 4, 6))
sketch5.addConstraint(Sketcher.Constraint("Equal", 5, 7))
sketch5.addConstraint(Sketcher.Constraint("Equal", 6, 8))
sketch5.addConstraint(Sketcher.Constraint("Equal", 7, 9))
sketch5.addConstraint(Sketcher.Constraint("Equal", 8, 10))
sketch5.addConstraint(Sketcher.Constraint("Equal", 9, 11))
sketch5.addConstraint(Sketcher.Constraint("Symmetric", 0, 3, 8, 3, -1, 1))
sketch5.addConstraint(Sketcher.Constraint("Symmetric", 2, 3, 8, 3, -2))
sketch5.addConstraint(Sketcher.Constraint("PointOnObject", 4, 3, -1))
sketch5.addConstraint(Sketcher.Constraint("PointOnObject", 6, 3, -1))
sketch5.addConstraint(Sketcher.Constraint("Horizontal", 1, 3, 10, 3))
sketch5.addConstraint(Sketcher.Constraint("DistanceX", 4, 3, 6, 3, Q("3 in")))
sketch5.addConstraint(Sketcher.Constraint("Diameter", 0, Q("4 mm")))
sketch5.addConstraint(Sketcher.Constraint("DistanceY", 0, 3, 2, 3, Q("2.25 in")))
sketch5.addConstraint(Sketcher.Constraint("DistanceX", 8, 3, 2, 3, Q("11.25 in")))
sketch5.addConstraint(Sketcher.Constraint("DistanceX", 10, 3, 4, 3, Q("3.75 in")))
sketch5.addConstraint(Sketcher.Constraint("Diameter", 1, Q("2.261108 mm")))
sketch5.addConstraint(Sketcher.Constraint("DistanceX", 4, 3, -1, 1, Q("1.6875 in")))
pad5 = body.newObject("PartDesign::Pad", "Pad004")
pad5.Profile = sketch5
pad5.setExpression("Length", "Params.pad5_length")
doc.recompute()

fillet = body.newObject("PartDesign::Fillet", "Fillet")
fillet.Base = (pad5, edges_at(pad5, [
    (159.448, 45.148, 3.912),
    (159.448, -45.148, 3.912),
    (-159.448, -45.148, 3.912),
    (-159.448, 45.148, 3.912),
    (163.576, -49.276, 11.208),
    (-163.576, -49.276, 11.208),
    (-163.576, 49.276, 11.208),
    (163.576, 49.276, 11.208),
    (161.988, 47.688, 7.817),
    (-161.988, 47.688, 7.817),
    (-161.988, -47.688, 7.817),
    (161.988, -47.688, 7.817),
]))
fillet.setExpression("Radius", "Params.fillet_radius")
doc.recompute()

fillet2 = body.newObject("PartDesign::Fillet", "Fillet001")
fillet2.Base = (fillet, edges_at(fillet, [
    (-164.338, -50.038, 6.032),
    (-164.338, 50.038, 6.032),
    (164.338, 50.038, 6.032),
    (164.338, -50.038, 6.032),
]))
fillet2.setExpression("Radius", "Params.fillet2_radius")

# Sketch on XY plane
sketch6 = body.newObject("Sketcher::SketchObject", "Sketch005")
sketch6.AttachmentSupport = (doc.getObject("XY_Plane"), [""])
sketch6.MapMode = "FlatFace"
sketch6.addGeometry(Part.LineSegment(App.Vector(26.9875, -15.875, 0), App.Vector(-26.9875, -15.875, 0)), False)
sketch6.addGeometry(Part.ArcOfCircle(Part.Circle(App.Vector(-26.9875, -12.7, 0), App.Vector(0, 0, 1), 3.175), math.radians(-180), math.radians(-90)), False)
sketch6.addGeometry(Part.LineSegment(App.Vector(-30.1625, -12.7, 0), App.Vector(-30.1625, 12.7, 0)), False)
sketch6.addGeometry(Part.ArcOfCircle(Part.Circle(App.Vector(-26.9875, 12.7, 0), App.Vector(0, 0, 1), 3.175), math.radians(90), math.radians(180)), False)
sketch6.addGeometry(Part.LineSegment(App.Vector(-26.9875, 15.875, 0), App.Vector(26.9875, 15.875, 0)), False)
sketch6.addGeometry(Part.ArcOfCircle(Part.Circle(App.Vector(26.9875, 12.7, 0), App.Vector(0, 0, 1), 3.175), math.radians(0), math.radians(90)), False)
sketch6.addGeometry(Part.LineSegment(App.Vector(30.1625, 12.7, 0), App.Vector(30.1625, -12.7, 0)), False)
sketch6.addGeometry(Part.ArcOfCircle(Part.Circle(App.Vector(26.9875, -12.7, 0), App.Vector(0, 0, 1), 3.175), math.radians(-90), math.radians(0)), False)
sketch6.addConstraint(Sketcher.Constraint("Tangent", 0, 2, 1, 2))
sketch6.addConstraint(Sketcher.Constraint("Tangent", 1, 1, 2, 1))
sketch6.addConstraint(Sketcher.Constraint("Tangent", 2, 2, 3, 2))
sketch6.addConstraint(Sketcher.Constraint("Tangent", 3, 1, 4, 1))
sketch6.addConstraint(Sketcher.Constraint("Tangent", 4, 2, 5, 2))
sketch6.addConstraint(Sketcher.Constraint("Tangent", 5, 1, 6, 1))
sketch6.addConstraint(Sketcher.Constraint("Tangent", 6, 2, 7, 2))
sketch6.addConstraint(Sketcher.Constraint("Tangent", 7, 1, 0, 1))
sketch6.addConstraint(Sketcher.Constraint("Horizontal", 0))
sketch6.addConstraint(Sketcher.Constraint("Vertical", 2))
sketch6.addConstraint(Sketcher.Constraint("Horizontal", 4))
sketch6.addConstraint(Sketcher.Constraint("Vertical", 6))
sketch6.addConstraint(Sketcher.Constraint("Equal", 1, 3))
sketch6.addConstraint(Sketcher.Constraint("Equal", 3, 5))
sketch6.addConstraint(Sketcher.Constraint("Equal", 5, 7))
sketch6.addConstraint(Sketcher.Constraint("Symmetric", 1, 3, 5, 3, -1, 1))
sketch6.addConstraint(Sketcher.Constraint("DistanceY", 2, 1, 2, 2, Q("1 in")))
sketch6.addConstraint(Sketcher.Constraint("Radius", 1, Q("0.125 in")))
sketch6.addConstraint(Sketcher.Constraint("DistanceX", 0, 2, 0, 1, Q("2.125 in")))
sketch6.setExpression("Constraints[16]", "Params.sketch6_height")
sketch6.setExpression("Constraints[17]", "Params.sketch6_radius")
sketch6.setExpression("Constraints[18]", "Params.sketch6_width")
pocket1 = body.newObject("PartDesign::Pocket", "Pocket")
pocket1.Profile = sketch6
pocket1.setExpression("Length", "Params.pocket1_length")
pocket1.Reversed = True

# Sketch on XY plane
sketch7 = body.newObject("Sketcher::SketchObject", "Sketch006")
sketch7.AttachmentSupport = (doc.getObject("XY_Plane"), [""])
sketch7.MapMode = "FlatFace"
sketch7.AttachmentOffset = App.Placement(App.Vector(0, 0, 0.1 * 25.4), App.Rotation())
sketch7.addGeometry(Part.Circle(App.Vector(0, 0, 0), App.Vector(0, 0, 1), 4.7625), False)
sketch7.addConstraint(Sketcher.Constraint("Coincident", 0, 3, -1, 1))
sketch7.addConstraint(Sketcher.Constraint("Diameter", 0, Q("0.375 in")))
sketch7.setExpression("Constraints[1]", "Params.sketch7_diameter")
pocket2 = body.newObject("PartDesign::Pocket", "Pocket001")
pocket2.Profile = sketch7
pocket2.Type = "ThroughAll"

# Sketch on XZ plane
sketch8 = body.newObject("Sketcher::SketchObject", "Sketch007")
sketch8.AttachmentSupport = (doc.getObject("XZ_Plane"), [""])
sketch8.MapMode = "FlatFace"
sketch8.AttachmentOffset = App.Placement(App.Vector(0, 0, -1.97 * 25.4), App.Rotation())
sketch8.addGeometry(Part.LineSegment(App.Vector(139.985, 5.5372, 0), App.Vector(145.765, 5.5372, 0)), False)
sketch8.addGeometry(Part.ArcOfCircle(Part.Circle(App.Vector(145.765, 3.7032, 0), App.Vector(0, 0, 1), 1.834), math.radians(-90), math.radians(90)), False)
sketch8.addGeometry(Part.LineSegment(App.Vector(145.765, 1.8692, 0), App.Vector(139.985, 1.8692, 0)), False)
sketch8.addGeometry(Part.ArcOfCircle(Part.Circle(App.Vector(139.985, 3.7032, 0), App.Vector(0, 0, 1), 1.834), math.radians(90), math.radians(270)), False)
sketch8.addConstraint(Sketcher.Constraint("Tangent", 0, 2, 1, 2))
sketch8.addConstraint(Sketcher.Constraint("Tangent", 1, 1, 2, 1))
sketch8.addConstraint(Sketcher.Constraint("Tangent", 2, 2, 3, 2))
sketch8.addConstraint(Sketcher.Constraint("Tangent", 3, 1, 0, 1))
sketch8.addConstraint(Sketcher.Constraint("Horizontal", 0))
sketch8.addConstraint(Sketcher.Constraint("Horizontal", 2))
sketch8.addConstraint(Sketcher.Constraint("Radius", 1, Q("1.834 mm")))
sketch8.addConstraint(Sketcher.Constraint("DistanceY", -1, 1, 0, 2, Q("0.218 in")))
sketch8.addConstraint(Sketcher.Constraint("DistanceX", 0, 1, 0, 2, Q("5.78 mm")))
sketch8.addConstraint(Sketcher.Constraint("DistanceX", -1, 1, 1, 3, Q("145.765 mm")))
pocket3 = body.newObject("PartDesign::Pocket", "Pocket002")
pocket3.Profile = sketch8
pocket3.setExpression("Length", "Params.pocket3_length")
pocket3.Reversed = True

# Sketch on XY plane
sketch9 = body.newObject("Sketcher::SketchObject", "Sketch008")
sketch9.AttachmentSupport = (doc.getObject("XY_Plane"), [""])
sketch9.MapMode = "FlatFace"
sketch9.AttachmentOffset = App.Placement(App.Vector(0, 0, 3.7032), App.Rotation())
sketch9.addGeometry(Part.LineSegment(App.Vector(138.151, 45.1485, 0), App.Vector(147.599, 45.1485, 0)), False)
sketch9.addGeometry(Part.LineSegment(App.Vector(147.599, 45.1485, 0), App.Vector(147.599, 46.89475, 0)), False)
sketch9.addGeometry(Part.ArcOfCircle(Part.Circle(App.Vector(146.0115, 46.89475, 0), App.Vector(0, 0, 1), 1.5875), math.radians(0), math.radians(90)), False)
sketch9.addGeometry(Part.LineSegment(App.Vector(146.0115, 48.48225, 0), App.Vector(139.7385, 48.48225, 0)), False)
sketch9.addGeometry(Part.ArcOfCircle(Part.Circle(App.Vector(139.7385, 46.89475, 0), App.Vector(0, 0, 1), 1.5875), math.radians(90), math.radians(180)), False)
sketch9.addGeometry(Part.LineSegment(App.Vector(138.151, 46.89475, 0), App.Vector(138.151, 45.1485, 0)), False)
sketch9.addConstraint(Sketcher.Constraint("Coincident", 0, 2, 1, 1))
sketch9.addConstraint(Sketcher.Constraint("Tangent", 1, 2, 2, 1))
sketch9.addConstraint(Sketcher.Constraint("Tangent", 2, 2, 3, 1))
sketch9.addConstraint(Sketcher.Constraint("Tangent", 3, 2, 4, 1))
sketch9.addConstraint(Sketcher.Constraint("Tangent", 4, 2, 5, 1))
sketch9.addConstraint(Sketcher.Constraint("Coincident", 5, 2, 0, 1))
sketch9.addConstraint(Sketcher.Constraint("Horizontal", 0))
sketch9.addConstraint(Sketcher.Constraint("Vertical", 1))
sketch9.addConstraint(Sketcher.Constraint("Horizontal", 3))
sketch9.addConstraint(Sketcher.Constraint("Vertical", 5))
sketch9.addConstraint(Sketcher.Constraint("Equal", 2, 4))
sketch9.addConstraint(Sketcher.Constraint("Radius", 2, Q("0.0625 in")))
sketch9.addConstraint(Sketcher.Constraint("DistanceX", 0, 1, 0, 2, Q("9.448 mm")))
sketch9.addConstraint(Sketcher.Constraint("DistanceY", -1, 1, 0, 2, Q("1.7775 in")))
sketch9.addConstraint(Sketcher.Constraint("DistanceY", 1, 1, 1, 2, Q("1.74625 mm")))
sketch9.addConstraint(Sketcher.Constraint("DistanceX", -1, 1, 2, 3, Q("146.0115 mm")))
sketch9.setExpression("Constraints[11]", "Params.sketch9_radius")
pocket4 = body.newObject("PartDesign::Pocket", "Pocket003")
pocket4.Profile = sketch9
pocket4.setExpression("Length", "Params.pocket4_length")
pocket4.Reversed = True

# Sketch on XY plane
sketch10 = body.newObject("Sketcher::SketchObject", "Sketch009")
sketch10.AttachmentSupport = (doc.getObject("XY_Plane"), [""])
sketch10.MapMode = "FlatFace"
sketch10.addGeometry(Part.Circle(App.Vector(157.988, 43.688, 0), App.Vector(0, 0, 1), 4.826), False)
sketch10.addGeometry(Part.Circle(App.Vector(157.988, -43.688, 0), App.Vector(0, 0, 1), 4.826), False)
sketch10.addGeometry(Part.Circle(App.Vector(-157.988, -43.688, 0), App.Vector(0, 0, 1), 4.826), False)
sketch10.addGeometry(Part.Circle(App.Vector(-157.988, 43.688, 0), App.Vector(0, 0, 1), 4.826), False)
sketch10.addConstraint(Sketcher.Constraint("Equal", 0, 1))
sketch10.addConstraint(Sketcher.Constraint("Equal", 1, 2))
sketch10.addConstraint(Sketcher.Constraint("Equal", 2, 3))
sketch10.addConstraint(Sketcher.Constraint("Symmetric", 0, 3, 2, 3, -1, 1))
sketch10.addConstraint(Sketcher.Constraint("Symmetric", 1, 3, 3, 3, -1, 1))
sketch10.addConstraint(Sketcher.Constraint("Symmetric", 1, 3, 2, 3, -2))
sketch10.addConstraint(Sketcher.Constraint("Diameter", 0, Q("0.38 in")))
sketch10.addConstraint(Sketcher.Constraint("DistanceX", -1, 1, 0, 3, Q("6.22 in")))
sketch10.addConstraint(Sketcher.Constraint("DistanceY", -1, 1, 0, 3, Q("1.72 in")))
sketch10.setExpression("Constraints[6]", "Params.sketch10_diameter")
pocket5 = body.newObject("PartDesign::Pocket", "Pocket004")
pocket5.Profile = sketch10
pocket5.setExpression("Length", "Params.pocket5_length")
pocket5.Reversed = True

doc.recompute()
